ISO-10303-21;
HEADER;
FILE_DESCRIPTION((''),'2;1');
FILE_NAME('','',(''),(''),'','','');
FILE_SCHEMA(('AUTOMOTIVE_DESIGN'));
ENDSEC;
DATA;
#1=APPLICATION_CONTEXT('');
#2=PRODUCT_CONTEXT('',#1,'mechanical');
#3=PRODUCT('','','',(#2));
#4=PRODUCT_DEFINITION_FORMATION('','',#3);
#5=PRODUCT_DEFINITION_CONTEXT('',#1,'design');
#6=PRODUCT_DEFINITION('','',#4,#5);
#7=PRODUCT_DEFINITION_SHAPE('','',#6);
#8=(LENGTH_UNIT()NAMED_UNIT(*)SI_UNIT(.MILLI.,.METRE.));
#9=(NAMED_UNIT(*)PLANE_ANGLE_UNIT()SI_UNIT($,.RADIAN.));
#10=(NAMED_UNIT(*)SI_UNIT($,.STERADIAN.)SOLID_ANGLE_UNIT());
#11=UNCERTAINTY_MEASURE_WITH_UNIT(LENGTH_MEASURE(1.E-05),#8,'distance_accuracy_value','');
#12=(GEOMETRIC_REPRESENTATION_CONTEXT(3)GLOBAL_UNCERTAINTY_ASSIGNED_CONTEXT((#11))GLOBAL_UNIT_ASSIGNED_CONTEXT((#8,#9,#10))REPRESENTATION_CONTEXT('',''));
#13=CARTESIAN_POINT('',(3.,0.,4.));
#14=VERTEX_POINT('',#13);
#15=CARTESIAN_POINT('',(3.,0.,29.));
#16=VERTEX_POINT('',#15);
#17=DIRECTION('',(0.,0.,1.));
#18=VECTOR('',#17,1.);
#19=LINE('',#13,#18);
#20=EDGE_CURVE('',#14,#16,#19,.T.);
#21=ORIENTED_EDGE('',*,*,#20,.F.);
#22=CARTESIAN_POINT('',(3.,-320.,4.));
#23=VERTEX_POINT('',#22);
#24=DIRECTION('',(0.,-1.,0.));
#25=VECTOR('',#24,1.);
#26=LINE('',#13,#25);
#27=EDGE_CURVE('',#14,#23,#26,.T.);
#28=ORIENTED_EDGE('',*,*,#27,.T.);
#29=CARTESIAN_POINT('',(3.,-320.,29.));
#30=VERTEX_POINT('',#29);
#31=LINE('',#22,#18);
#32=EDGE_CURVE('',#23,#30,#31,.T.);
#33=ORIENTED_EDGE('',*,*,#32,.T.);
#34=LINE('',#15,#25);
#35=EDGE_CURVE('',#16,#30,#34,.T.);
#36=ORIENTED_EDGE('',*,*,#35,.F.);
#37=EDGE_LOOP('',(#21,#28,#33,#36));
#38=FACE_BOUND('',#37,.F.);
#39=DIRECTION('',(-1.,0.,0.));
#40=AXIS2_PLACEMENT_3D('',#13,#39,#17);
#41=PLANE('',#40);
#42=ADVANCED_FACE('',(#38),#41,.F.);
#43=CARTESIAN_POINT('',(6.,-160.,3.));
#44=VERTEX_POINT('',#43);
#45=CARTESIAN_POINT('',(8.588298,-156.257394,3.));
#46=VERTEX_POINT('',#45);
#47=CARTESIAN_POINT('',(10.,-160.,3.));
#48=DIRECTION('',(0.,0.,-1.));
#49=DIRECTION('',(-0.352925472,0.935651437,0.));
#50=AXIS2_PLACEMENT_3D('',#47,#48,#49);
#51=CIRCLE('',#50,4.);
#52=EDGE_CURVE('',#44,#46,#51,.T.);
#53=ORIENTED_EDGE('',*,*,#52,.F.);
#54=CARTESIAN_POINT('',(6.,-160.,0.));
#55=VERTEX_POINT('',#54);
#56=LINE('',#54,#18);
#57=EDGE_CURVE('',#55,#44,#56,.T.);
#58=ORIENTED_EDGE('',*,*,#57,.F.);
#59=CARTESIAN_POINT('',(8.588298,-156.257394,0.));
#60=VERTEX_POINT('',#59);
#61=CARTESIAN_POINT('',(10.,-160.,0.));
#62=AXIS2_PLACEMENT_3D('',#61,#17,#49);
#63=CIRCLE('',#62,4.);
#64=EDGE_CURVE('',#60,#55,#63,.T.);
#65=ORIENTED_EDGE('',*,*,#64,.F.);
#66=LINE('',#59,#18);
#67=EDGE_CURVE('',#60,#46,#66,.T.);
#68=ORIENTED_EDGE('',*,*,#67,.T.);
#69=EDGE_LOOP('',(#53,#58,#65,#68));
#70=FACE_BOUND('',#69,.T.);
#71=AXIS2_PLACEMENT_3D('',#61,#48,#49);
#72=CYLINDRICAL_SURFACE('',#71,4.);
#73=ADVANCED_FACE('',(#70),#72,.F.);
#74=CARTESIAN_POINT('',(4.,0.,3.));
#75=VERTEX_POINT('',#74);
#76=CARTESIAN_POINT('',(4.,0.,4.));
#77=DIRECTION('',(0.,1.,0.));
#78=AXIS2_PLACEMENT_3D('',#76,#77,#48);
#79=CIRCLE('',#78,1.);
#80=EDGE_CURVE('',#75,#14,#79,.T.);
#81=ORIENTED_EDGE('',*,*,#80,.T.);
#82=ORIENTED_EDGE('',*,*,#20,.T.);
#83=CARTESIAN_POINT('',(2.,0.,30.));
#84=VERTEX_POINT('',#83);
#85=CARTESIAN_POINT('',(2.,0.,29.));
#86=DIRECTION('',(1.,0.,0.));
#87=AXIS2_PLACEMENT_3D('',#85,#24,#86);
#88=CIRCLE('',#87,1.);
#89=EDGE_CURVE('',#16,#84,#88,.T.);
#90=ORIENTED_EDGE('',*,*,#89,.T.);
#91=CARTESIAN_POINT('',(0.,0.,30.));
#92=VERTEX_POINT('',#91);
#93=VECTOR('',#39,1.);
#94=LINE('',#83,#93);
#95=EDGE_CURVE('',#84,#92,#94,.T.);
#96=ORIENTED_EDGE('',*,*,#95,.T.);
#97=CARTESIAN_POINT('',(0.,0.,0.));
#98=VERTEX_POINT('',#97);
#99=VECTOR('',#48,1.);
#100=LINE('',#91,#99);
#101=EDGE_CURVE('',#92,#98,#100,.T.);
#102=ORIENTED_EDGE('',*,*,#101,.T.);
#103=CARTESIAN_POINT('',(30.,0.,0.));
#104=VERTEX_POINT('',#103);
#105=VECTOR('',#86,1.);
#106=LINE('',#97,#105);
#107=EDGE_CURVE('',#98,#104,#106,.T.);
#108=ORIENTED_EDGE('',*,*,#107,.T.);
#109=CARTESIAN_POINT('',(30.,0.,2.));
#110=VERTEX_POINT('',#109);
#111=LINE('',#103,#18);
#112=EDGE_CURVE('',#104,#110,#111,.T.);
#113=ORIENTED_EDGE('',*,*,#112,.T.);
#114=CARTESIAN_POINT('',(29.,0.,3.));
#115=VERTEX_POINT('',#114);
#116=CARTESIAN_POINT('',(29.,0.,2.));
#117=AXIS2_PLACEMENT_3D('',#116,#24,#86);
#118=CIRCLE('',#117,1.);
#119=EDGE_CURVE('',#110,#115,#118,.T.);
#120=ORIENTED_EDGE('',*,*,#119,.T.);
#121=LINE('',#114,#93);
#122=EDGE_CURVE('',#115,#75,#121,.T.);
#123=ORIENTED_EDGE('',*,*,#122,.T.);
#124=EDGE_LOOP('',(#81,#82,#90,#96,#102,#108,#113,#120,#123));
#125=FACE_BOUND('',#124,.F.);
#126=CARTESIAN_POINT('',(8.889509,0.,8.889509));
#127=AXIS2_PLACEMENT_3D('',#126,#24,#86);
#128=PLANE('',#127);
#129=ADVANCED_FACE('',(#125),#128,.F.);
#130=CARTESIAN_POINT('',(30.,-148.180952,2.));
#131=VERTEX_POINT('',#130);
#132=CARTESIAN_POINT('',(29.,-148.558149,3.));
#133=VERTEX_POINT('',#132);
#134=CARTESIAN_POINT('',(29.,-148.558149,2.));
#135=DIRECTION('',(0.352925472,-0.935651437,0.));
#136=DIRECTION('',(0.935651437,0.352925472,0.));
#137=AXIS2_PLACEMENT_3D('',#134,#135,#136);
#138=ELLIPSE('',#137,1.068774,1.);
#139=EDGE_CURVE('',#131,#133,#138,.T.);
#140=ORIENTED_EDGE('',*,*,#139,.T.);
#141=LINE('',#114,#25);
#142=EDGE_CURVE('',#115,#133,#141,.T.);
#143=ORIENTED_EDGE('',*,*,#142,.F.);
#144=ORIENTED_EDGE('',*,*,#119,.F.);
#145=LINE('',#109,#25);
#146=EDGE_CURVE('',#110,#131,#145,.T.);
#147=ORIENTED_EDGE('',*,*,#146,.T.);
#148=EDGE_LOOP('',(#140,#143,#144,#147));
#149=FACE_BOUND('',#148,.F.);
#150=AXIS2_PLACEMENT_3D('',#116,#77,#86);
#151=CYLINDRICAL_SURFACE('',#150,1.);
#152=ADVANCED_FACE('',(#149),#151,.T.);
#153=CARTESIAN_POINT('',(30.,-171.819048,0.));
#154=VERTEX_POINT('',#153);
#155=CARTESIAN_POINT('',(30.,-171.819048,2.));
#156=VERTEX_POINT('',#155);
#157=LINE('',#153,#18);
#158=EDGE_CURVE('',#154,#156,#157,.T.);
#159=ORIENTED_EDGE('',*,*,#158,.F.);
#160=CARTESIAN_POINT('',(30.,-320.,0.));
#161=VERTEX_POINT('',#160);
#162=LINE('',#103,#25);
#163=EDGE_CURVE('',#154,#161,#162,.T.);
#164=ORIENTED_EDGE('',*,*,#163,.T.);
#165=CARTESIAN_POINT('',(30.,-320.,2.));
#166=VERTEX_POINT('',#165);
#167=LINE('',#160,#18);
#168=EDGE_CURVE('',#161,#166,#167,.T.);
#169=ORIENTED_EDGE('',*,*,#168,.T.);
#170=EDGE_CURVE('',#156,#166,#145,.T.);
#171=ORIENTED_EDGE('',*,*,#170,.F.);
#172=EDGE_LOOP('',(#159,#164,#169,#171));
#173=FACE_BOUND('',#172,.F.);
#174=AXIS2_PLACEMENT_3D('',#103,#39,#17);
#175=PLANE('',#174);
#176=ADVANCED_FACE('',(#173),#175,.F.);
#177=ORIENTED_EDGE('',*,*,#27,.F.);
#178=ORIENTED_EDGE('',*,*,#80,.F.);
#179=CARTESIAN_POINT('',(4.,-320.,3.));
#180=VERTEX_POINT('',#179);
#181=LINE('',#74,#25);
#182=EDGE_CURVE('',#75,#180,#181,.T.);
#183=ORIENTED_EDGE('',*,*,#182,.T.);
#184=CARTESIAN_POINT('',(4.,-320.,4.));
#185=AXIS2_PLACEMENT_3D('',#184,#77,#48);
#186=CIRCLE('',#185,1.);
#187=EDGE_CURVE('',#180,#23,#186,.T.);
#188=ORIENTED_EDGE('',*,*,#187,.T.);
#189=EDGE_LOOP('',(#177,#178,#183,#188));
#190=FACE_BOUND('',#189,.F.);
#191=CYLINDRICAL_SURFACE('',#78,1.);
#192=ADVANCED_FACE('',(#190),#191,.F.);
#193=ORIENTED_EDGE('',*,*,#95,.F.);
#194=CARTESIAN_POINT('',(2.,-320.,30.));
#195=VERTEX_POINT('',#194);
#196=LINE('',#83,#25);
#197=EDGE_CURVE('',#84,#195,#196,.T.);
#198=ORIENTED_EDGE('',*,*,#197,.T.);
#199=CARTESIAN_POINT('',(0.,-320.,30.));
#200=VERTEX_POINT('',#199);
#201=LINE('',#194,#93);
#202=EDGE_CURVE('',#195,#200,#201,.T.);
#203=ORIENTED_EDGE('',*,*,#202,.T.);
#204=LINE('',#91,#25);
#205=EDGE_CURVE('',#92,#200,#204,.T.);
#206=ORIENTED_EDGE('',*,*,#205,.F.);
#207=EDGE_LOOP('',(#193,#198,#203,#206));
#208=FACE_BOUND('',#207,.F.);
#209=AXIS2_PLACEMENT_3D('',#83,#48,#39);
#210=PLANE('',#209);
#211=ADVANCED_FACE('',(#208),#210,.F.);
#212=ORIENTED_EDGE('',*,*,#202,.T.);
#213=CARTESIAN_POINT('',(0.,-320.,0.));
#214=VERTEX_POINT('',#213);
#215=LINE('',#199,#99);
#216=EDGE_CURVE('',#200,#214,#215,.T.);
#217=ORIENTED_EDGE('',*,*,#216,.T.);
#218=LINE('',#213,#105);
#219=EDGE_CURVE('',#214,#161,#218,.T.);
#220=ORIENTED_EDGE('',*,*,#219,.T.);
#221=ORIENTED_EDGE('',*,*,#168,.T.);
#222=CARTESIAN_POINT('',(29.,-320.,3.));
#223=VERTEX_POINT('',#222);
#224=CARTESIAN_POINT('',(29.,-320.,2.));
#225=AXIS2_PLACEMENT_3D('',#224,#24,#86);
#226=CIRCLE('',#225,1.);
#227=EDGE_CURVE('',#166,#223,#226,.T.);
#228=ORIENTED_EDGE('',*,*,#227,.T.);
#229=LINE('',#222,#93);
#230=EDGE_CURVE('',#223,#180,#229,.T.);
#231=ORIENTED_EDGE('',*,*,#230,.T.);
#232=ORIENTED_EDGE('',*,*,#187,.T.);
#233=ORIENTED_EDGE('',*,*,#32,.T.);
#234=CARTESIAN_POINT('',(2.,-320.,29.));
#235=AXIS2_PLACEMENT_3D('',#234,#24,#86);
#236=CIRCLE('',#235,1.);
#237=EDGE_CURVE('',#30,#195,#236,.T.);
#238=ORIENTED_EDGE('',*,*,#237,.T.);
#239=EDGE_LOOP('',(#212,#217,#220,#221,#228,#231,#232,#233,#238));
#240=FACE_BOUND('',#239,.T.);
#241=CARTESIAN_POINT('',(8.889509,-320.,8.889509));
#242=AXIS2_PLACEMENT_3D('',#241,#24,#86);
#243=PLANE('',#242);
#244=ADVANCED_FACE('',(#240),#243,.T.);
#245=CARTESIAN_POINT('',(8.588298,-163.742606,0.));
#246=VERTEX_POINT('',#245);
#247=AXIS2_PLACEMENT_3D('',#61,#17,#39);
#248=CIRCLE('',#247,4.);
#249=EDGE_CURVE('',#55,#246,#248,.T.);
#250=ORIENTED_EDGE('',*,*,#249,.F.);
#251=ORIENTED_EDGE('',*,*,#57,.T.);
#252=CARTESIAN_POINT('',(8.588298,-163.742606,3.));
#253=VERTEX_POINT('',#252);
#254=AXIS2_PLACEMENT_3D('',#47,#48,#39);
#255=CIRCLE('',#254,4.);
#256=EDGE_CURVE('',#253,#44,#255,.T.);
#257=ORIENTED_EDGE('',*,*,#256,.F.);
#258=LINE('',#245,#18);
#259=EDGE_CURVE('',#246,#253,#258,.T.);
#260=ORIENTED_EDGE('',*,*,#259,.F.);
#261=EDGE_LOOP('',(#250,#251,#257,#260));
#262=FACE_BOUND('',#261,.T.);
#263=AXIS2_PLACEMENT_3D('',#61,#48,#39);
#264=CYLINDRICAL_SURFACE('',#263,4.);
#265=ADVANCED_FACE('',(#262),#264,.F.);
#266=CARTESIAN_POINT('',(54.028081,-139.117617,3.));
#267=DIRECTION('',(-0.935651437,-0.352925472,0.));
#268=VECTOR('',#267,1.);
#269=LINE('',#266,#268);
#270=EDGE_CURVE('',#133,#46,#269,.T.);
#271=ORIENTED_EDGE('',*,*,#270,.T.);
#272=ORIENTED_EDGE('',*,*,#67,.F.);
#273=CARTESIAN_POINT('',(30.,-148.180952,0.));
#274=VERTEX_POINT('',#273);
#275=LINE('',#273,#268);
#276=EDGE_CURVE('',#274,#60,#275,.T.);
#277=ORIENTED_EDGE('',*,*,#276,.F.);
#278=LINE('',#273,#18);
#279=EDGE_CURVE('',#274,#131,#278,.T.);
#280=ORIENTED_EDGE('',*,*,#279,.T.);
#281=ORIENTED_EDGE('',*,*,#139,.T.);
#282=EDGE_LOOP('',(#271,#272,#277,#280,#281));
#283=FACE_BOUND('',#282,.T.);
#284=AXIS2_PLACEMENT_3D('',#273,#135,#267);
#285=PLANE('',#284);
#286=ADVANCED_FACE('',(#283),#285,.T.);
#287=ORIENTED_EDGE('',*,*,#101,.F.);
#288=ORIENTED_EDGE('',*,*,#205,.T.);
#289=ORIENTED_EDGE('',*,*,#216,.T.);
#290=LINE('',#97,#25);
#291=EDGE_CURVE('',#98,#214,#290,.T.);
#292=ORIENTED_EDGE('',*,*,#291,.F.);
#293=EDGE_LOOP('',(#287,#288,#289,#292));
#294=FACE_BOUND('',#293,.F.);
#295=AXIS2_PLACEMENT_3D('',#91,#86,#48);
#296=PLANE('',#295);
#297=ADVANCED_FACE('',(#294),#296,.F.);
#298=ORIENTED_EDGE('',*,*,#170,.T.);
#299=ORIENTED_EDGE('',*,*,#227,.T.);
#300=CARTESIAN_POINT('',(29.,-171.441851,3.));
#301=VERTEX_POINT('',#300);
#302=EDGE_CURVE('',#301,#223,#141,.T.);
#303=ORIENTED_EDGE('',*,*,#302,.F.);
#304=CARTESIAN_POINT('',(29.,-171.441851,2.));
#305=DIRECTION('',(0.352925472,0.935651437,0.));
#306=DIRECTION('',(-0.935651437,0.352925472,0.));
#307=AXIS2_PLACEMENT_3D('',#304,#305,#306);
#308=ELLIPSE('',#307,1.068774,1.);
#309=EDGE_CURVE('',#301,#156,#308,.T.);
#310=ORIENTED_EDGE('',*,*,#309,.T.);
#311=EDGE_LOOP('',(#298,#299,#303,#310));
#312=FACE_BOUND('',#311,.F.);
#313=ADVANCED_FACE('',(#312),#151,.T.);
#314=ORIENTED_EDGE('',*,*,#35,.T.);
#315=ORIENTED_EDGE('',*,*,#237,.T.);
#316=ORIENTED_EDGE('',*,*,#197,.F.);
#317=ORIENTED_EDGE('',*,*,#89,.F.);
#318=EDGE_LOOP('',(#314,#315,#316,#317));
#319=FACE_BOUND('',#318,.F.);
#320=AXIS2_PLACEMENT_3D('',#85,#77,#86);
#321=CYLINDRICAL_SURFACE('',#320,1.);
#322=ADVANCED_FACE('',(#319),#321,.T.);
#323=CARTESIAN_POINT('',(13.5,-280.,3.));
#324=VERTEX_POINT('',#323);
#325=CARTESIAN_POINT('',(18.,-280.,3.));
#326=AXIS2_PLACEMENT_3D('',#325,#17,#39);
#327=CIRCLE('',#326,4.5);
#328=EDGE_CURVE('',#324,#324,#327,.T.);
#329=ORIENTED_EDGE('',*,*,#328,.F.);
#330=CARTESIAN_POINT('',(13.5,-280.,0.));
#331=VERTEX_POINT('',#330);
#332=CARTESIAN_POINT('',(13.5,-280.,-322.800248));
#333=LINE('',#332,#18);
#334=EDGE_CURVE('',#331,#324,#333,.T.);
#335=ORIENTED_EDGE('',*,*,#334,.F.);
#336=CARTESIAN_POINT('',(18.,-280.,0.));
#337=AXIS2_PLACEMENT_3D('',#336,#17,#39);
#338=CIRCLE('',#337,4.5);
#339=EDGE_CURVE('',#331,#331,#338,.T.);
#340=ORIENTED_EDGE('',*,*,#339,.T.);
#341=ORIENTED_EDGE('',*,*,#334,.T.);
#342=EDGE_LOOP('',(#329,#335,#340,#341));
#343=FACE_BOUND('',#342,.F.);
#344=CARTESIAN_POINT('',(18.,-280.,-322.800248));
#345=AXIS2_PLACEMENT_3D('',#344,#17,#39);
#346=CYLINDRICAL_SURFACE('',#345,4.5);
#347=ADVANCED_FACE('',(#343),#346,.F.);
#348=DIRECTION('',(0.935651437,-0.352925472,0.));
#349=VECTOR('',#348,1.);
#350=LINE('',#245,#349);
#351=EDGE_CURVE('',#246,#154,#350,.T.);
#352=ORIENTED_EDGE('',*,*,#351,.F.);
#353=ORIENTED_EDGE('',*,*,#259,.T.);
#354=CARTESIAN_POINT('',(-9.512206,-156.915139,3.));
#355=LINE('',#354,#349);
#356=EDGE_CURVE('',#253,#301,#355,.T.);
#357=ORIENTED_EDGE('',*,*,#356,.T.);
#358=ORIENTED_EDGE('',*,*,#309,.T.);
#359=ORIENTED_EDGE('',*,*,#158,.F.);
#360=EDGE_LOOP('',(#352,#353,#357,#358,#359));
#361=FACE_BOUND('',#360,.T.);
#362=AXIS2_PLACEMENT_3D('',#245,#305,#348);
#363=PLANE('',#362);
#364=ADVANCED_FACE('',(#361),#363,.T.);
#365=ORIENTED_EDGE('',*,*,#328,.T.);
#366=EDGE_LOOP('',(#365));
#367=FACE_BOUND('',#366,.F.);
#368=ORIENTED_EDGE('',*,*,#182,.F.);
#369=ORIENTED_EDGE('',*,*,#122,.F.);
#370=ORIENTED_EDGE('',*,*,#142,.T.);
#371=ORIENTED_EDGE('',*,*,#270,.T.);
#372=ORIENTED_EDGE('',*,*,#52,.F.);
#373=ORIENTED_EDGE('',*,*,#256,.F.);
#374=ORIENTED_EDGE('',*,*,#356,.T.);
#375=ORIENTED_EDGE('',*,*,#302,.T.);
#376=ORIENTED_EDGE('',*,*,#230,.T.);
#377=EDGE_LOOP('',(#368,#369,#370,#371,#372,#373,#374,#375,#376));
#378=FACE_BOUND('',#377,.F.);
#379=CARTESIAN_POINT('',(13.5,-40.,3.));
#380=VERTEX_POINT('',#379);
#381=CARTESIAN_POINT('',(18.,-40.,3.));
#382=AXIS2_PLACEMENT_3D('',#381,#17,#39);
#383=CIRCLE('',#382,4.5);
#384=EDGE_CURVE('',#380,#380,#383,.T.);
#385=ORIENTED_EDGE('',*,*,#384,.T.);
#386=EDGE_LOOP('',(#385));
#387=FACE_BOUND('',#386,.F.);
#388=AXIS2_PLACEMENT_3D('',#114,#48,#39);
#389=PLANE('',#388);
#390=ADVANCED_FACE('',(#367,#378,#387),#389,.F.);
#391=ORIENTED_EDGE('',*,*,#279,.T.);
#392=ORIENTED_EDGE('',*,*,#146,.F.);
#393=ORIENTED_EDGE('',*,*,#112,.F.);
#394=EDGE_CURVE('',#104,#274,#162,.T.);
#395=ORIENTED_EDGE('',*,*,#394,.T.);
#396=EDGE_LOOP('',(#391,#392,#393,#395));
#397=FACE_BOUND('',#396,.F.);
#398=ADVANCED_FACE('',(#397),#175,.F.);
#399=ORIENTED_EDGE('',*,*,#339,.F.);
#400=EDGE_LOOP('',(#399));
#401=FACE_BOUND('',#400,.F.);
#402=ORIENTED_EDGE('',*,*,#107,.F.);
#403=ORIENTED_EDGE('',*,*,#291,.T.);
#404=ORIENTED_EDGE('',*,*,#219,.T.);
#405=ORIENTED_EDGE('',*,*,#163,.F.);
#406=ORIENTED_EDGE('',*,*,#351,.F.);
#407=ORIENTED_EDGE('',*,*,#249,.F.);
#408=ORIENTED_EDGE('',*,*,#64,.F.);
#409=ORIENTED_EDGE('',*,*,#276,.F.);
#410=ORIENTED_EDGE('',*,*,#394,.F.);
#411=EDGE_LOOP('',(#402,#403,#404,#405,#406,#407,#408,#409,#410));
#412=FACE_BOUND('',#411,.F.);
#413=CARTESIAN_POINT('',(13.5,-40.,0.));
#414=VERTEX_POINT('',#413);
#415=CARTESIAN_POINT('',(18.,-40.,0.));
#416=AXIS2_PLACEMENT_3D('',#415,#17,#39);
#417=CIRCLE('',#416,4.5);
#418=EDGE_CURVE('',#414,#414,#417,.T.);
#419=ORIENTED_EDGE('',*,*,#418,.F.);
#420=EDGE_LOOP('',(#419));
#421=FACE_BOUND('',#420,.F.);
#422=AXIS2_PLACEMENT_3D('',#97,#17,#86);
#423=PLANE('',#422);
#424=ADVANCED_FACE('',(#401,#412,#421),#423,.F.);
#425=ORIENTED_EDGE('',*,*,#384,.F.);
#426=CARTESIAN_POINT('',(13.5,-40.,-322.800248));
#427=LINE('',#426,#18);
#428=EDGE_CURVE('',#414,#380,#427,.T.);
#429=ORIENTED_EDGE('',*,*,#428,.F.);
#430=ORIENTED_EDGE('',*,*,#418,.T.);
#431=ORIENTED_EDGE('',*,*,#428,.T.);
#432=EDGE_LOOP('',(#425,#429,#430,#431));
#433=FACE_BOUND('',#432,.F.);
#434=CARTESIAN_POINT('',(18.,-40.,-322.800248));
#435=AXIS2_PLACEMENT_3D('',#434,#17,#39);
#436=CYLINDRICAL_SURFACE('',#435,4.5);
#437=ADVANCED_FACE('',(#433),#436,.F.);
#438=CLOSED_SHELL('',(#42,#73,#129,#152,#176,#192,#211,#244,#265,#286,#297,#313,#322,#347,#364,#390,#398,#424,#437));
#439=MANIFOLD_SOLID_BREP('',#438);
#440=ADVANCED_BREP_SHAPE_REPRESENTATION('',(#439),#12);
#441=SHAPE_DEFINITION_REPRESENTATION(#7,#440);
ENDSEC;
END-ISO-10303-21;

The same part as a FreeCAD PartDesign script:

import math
import FreeCAD as App
import Part
import Sketcher

V = App.Vector
Q = App.Units.Quantity

doc = App.newDocument("Part")
body = doc.addObject("PartDesign::Body", "Body")

# Sketch on XZ plane
sketch1 = body.newObject("Sketcher::SketchObject", "Sketch")
sketch1.AttachmentSupport = (doc.getObject("XZ_Plane"), [""])
sketch1.MapMode = "FlatFace"
sketch1.addGeometry(Part.LineSegment(V(0, 30, 0), V(0, 0, 0)), False)
sketch1.addGeometry(Part.LineSegment(V(0, 0, 0), V(30, 0, 0)), False)
sketch1.addGeometry(Part.LineSegment(V(30, 0, 0), V(30, 2, 0)), False)
sketch1.addGeometry(Part.ArcOfCircle(Part.Circle(V(29, 2, 0), V(0, 0, 1), 1), math.radians(0), math.radians(90)), False)
sketch1.addGeometry(Part.LineSegment(V(29, 3, 0), V(4, 3, 0)), False)
sketch1.addGeometry(Part.ArcOfCircle(Part.Circle(V(4, 4, 0), V(0, 0, 1), 1), math.radians(180), math.radians(270)), False)
sketch1.addGeometry(Part.LineSegment(V(3, 4, 0), V(3, 29, 0)), False)
sketch1.addGeometry(Part.ArcOfCircle(Part.Circle(V(2, 29, 0), V(0, 0, 1), 1), math.radians(0), math.radians(90)), False)
sketch1.addGeometry(Part.LineSegment(V(2, 30, 0), V(0, 30, 0)), False)
sketch1.addConstraint(Sketcher.Constraint("Coincident", 0, 2, 1, 1))
sketch1.addConstraint(Sketcher.Constraint("Coincident", 1, 2, 2, 1))
sketch1.addConstraint(Sketcher.Constraint("Tangent", 2, 2, 3, 1))
sketch1.addConstraint(Sketcher.Constraint("Tangent", 3, 2, 4, 1))
sketch1.addConstraint(Sketcher.Constraint("Tangent", 4, 2, 5, 2))
sketch1.addConstraint(Sketcher.Constraint("Tangent", 5, 1, 6, 1))
sketch1.addConstraint(Sketcher.Constraint("Tangent", 6, 2, 7, 1))
sketch1.addConstraint(Sketcher.Constraint("Tangent", 7, 2, 8, 1))
sketch1.addConstraint(Sketcher.Constraint("Coincident", 8, 2, 0, 1))
sketch1.addConstraint(Sketcher.Constraint("Vertical", 0))
sketch1.addConstraint(Sketcher.Constraint("Horizontal", 1))
sketch1.addConstraint(Sketcher.Constraint("Vertical", 2))
sketch1.addConstraint(Sketcher.Constraint("Horizontal", 4))
sketch1.addConstraint(Sketcher.Constraint("Vertical", 6))
sketch1.addConstraint(Sketcher.Constraint("Horizontal", 8))
sketch1.addConstraint(Sketcher.Constraint("Coincident", 0, 2, -1, 1))
sketch1.addConstraint(Sketcher.Constraint("Equal", 3, 5))
sketch1.addConstraint(Sketcher.Constraint("Equal", 5, 7))
sketch1.addConstraint(Sketcher.Constraint("Equal", 1, 0))
sketch1.addConstraint(Sketcher.Constraint("Equal", 8, 2))
sketch1.addConstraint(Sketcher.Constraint("Radius", 3, Q("1 mm")))
sketch1.addConstraint(Sketcher.Constraint("DistanceX", 1, 1, 1, 2, Q("30 mm")))
sketch1.addConstraint(Sketcher.Constraint("DistanceX", 4, 2, 4, 1, Q("25 mm")))
pad1 = body.newObject("PartDesign::Pad", "Pad")
pad1.Profile = sketch1
pad1.Length = 320

# Sketch on XY plane
sketch2 = body.newObject("Sketcher::SketchObject", "Sketch001")
sketch2.AttachmentSupport = (doc.getObject("XY_Plane"), [""])
sketch2.MapMode = "FlatFace"
sketch2.addGeometry(Part.LineSegment(V(30, -148.2, 0), V(8.6, -156.3, 0)), False)
sketch2.addGeometry(Part.ArcOfCircle(Part.Circle(V(10, -160, 0), V(0, 0, 1), 4), math.radians(111), math.radians(180)), False)
sketch2.addGeometry(Part.ArcOfCircle(Part.Circle(V(10, -160, 0), V(0, 0, 1), 4), math.radians(180), math.radians(249)), False)
sketch2.addGeometry(Part.LineSegment(V(8.6, -163.7, 0), V(30, -171.8, 0)), False)
sketch2.addGeometry(Part.LineSegment(V(30, -171.8, 0), V(30, -148.2, 0)), False)
sketch2.addConstraint(Sketcher.Constraint("Tangent", 0, 2, 1, 1))
sketch2.addConstraint(Sketcher.Constraint("Tangent", 1, 2, 2, 1))
sketch2.addConstraint(Sketcher.Constraint("Tangent", 2, 2, 3, 1))
sketch2.addConstraint(Sketcher.Constraint("Coincident", 3, 2, 4, 1))
sketch2.addConstraint(Sketcher.Constraint("Coincident", 4, 2, 0, 1))
sketch2.addConstraint(Sketcher.Constraint("Vertical", 4))
sketch2.addConstraint(Sketcher.Constraint("Equal", 1, 2))
sketch2.addConstraint(Sketcher.Constraint("Horizontal", 2, 3, 1, 2))
sketch2.addConstraint(Sketcher.Constraint("Vertical", 0, 2, 2, 2))
sketch2.addConstraint(Sketcher.Constraint("Radius", 1, Q("4 mm")))
sketch2.addConstraint(Sketcher.Constraint("DistanceX", -1, 1, 1, 3, Q("10 mm")))
sketch2.addConstraint(Sketcher.Constraint("DistanceY", 1, 3, -1, 1, Q("160 mm")))
sketch2.addConstraint(Sketcher.Constraint("DistanceX", -1, 1, 3, 2, Q("30 mm")))
sketch2.addConstraint(Sketcher.Constraint("DistanceX", -1, 1, 0, 2, Q("8.588298 mm")))
pocket1 = body.newObject("PartDesign::Pocket", "Pocket")
pocket1.Profile = sketch2
pocket1.Type = "ThroughAll"
pocket1.Reversed = True

# Sketch on XY plane
sketch3 = body.newObject("Sketcher::SketchObject", "Sketch002")
sketch3.AttachmentSupport = (doc.getObject("XY_Plane"), [""])
sketch3.MapMode = "FlatFace"
sketch3.addGeometry(Part.Circle(V(18, -40, 0), V(0, 0, 1), 4.5), False)
sketch3.addGeometry(Part.Circle(V(18, -280, 0), V(0, 0, 1), 4.5), False)
sketch3.addConstraint(Sketcher.Constraint("Equal", 0, 1))
sketch3.addConstraint(Sketcher.Constraint("Vertical", 0, 3, 1, 3))
sketch3.addConstraint(Sketcher.Constraint("Diameter", 0, Q("9 mm")))
sketch3.addConstraint(Sketcher.Constraint("DistanceX", -1, 1, 0, 3, Q("18 mm")))
sketch3.addConstraint(Sketcher.Constraint("DistanceY", 0, 3, -1, 1, Q("40 mm")))
sketch3.addConstraint(Sketcher.Constraint("DistanceY", 1, 3, -1, 1, Q("280 mm")))
doc.recompute()
hole = body.newObject("PartDesign::Hole", "Hole")
hole.Profile = sketch3
hole.ThreadType = "None"
hole.Diameter = 9
hole.DepthType = "ThroughAll"
hole.Reversed = True

doc.recompute()
